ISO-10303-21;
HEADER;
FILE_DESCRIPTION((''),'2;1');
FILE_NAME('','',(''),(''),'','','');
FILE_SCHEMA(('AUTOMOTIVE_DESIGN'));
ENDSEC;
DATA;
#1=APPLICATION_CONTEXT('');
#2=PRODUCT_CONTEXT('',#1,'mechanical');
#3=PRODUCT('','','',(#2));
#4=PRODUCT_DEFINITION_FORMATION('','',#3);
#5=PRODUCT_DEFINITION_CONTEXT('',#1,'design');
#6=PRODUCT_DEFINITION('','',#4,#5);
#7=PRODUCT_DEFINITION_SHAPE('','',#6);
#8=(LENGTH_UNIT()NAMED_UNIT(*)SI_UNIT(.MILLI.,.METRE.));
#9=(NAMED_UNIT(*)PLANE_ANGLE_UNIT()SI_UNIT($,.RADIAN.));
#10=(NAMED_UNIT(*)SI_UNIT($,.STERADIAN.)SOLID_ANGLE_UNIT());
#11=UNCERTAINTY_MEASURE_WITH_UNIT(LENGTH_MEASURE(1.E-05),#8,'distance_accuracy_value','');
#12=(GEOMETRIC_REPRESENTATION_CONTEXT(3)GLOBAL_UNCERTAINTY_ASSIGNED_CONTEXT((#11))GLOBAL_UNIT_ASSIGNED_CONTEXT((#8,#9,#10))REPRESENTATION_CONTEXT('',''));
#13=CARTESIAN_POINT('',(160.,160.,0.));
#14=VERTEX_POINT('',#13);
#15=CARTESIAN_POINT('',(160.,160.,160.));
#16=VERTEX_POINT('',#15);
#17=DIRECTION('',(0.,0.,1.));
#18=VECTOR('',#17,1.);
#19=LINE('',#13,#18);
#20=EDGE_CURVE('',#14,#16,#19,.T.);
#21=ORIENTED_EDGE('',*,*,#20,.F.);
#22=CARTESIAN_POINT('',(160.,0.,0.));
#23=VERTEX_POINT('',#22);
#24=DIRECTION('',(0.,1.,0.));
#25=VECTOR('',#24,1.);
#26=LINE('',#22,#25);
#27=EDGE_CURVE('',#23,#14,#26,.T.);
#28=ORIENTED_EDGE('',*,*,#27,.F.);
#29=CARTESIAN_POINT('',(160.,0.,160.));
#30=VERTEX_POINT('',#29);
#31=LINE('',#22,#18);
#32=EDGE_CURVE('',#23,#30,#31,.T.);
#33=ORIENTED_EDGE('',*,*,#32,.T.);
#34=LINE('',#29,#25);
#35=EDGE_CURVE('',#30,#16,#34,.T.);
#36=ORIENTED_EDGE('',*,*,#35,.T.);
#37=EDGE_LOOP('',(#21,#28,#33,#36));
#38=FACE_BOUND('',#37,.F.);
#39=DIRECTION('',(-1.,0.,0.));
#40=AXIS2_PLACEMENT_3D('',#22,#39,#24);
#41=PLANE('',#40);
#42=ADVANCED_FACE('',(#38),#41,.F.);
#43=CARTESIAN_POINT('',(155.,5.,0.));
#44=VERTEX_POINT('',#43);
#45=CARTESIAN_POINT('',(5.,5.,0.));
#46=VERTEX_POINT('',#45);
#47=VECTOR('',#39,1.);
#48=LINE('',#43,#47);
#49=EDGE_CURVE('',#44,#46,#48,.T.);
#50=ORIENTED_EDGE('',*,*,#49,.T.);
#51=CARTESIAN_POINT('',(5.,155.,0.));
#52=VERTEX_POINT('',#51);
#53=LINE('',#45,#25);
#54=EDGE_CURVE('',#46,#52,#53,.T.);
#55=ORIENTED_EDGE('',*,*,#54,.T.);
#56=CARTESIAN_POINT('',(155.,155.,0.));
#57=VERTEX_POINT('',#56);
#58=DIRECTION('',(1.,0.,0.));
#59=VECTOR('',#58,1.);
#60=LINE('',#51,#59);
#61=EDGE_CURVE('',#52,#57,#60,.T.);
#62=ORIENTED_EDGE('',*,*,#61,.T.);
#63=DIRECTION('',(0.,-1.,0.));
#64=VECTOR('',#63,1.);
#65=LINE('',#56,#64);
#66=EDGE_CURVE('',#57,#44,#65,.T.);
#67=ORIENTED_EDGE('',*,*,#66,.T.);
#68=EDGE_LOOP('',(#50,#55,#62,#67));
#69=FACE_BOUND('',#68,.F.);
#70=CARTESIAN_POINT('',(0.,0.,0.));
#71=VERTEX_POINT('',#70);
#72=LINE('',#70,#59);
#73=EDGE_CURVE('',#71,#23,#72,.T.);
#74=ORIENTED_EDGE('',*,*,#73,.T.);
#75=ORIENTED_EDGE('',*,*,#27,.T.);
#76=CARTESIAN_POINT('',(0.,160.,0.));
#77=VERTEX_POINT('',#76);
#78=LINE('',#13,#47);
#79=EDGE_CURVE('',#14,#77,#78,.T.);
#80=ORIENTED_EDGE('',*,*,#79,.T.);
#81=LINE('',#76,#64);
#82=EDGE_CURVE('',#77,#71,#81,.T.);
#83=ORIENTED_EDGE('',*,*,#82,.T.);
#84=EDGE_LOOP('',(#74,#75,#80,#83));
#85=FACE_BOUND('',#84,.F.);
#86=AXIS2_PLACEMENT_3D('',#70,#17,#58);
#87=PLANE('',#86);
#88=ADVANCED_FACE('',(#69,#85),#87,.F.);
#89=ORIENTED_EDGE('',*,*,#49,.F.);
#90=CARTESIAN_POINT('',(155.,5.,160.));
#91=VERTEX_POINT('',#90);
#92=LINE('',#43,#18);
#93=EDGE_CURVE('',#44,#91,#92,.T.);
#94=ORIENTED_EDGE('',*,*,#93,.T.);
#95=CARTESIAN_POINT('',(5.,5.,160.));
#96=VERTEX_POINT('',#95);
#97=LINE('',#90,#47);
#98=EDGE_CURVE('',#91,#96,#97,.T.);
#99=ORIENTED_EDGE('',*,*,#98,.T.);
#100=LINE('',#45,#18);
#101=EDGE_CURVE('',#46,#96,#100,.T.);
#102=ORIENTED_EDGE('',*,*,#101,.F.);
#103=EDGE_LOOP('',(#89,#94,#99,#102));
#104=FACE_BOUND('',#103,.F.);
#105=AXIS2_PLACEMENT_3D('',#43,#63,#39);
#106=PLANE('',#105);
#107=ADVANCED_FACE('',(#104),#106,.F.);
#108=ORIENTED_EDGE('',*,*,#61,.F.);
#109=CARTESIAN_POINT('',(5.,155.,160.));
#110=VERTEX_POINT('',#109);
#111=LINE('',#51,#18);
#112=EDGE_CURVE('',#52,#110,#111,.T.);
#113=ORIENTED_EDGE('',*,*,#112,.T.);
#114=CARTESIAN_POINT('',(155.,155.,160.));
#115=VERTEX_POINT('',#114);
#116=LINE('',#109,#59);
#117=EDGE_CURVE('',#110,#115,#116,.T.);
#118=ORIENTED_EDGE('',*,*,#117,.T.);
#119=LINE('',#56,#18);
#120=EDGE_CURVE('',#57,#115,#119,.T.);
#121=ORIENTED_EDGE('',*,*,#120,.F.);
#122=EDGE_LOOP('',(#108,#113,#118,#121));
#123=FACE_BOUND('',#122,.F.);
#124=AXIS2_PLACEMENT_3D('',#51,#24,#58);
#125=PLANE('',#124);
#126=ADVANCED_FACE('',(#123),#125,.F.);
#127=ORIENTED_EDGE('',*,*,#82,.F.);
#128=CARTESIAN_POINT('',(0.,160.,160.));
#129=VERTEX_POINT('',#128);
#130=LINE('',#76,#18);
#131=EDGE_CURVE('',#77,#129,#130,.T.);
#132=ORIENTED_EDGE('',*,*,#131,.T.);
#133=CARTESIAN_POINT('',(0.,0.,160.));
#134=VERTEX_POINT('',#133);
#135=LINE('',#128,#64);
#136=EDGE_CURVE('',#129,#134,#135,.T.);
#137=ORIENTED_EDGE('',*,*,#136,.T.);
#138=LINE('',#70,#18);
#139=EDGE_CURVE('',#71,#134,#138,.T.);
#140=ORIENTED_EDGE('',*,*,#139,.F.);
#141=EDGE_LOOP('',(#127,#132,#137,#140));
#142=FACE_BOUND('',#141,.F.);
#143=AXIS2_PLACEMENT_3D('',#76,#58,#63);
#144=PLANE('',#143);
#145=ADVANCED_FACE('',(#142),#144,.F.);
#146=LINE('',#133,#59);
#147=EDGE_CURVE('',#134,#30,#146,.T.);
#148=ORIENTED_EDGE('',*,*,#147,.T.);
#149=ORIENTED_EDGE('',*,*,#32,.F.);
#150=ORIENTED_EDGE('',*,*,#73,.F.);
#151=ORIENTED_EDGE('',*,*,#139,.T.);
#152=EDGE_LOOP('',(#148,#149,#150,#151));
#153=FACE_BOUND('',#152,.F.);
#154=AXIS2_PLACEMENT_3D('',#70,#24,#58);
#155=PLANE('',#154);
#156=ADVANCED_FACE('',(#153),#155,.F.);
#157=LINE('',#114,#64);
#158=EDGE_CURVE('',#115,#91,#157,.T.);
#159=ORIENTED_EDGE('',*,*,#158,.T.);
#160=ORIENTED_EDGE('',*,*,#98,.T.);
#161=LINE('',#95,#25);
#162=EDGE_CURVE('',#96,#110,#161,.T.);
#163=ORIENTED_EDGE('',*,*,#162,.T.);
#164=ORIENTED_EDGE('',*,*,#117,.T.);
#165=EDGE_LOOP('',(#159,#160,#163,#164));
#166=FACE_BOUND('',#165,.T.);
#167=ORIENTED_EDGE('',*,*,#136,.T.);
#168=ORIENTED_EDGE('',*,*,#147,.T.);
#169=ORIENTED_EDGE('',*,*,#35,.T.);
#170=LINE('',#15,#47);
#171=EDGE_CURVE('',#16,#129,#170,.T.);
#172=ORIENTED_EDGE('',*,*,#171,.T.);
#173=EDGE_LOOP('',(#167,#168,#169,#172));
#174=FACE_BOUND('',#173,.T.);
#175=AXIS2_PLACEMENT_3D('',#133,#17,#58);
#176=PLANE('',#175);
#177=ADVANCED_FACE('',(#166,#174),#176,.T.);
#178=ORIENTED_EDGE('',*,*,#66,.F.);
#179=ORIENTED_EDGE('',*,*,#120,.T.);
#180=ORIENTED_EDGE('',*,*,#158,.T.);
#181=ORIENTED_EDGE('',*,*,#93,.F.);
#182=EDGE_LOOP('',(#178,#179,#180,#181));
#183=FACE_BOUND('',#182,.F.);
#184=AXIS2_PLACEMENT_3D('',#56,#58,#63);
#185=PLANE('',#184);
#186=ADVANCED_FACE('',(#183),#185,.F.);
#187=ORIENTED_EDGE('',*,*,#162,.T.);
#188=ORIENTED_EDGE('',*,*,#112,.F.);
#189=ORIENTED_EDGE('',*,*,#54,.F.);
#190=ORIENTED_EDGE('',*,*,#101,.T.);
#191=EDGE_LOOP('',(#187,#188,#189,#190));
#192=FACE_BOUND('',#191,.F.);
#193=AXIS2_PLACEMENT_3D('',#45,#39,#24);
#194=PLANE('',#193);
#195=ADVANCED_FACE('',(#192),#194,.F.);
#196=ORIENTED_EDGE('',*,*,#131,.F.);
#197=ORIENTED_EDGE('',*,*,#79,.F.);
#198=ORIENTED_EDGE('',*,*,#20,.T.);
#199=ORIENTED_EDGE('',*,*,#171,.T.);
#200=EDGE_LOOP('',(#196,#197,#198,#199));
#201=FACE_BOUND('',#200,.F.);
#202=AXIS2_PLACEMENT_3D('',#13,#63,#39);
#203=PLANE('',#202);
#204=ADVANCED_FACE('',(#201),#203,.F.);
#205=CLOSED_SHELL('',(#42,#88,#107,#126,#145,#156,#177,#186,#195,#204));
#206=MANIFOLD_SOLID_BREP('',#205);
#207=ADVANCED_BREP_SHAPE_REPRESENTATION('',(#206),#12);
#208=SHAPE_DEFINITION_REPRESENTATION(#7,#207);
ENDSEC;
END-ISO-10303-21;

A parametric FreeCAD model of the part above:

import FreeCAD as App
import Part
import Sketcher

V = App.Vector
Q = App.Units.Quantity


def add_polygon(sketch, points):
    """Adds a closed chain of lines whose ends are joined by coincident constraints."""
    first, n = sketch.GeometryCount, len(points)
    for a, b in zip(points, points[1:] + points[:1]):
        sketch.addGeometry(Part.LineSegment(App.Vector(*a, 0), App.Vector(*b, 0)), False)
    for i in range(n):
        sketch.addConstraint(Sketcher.Constraint("Coincident", first + i, 2, first + (i + 1) % n, 1))

doc = App.newDocument("Part")
body = doc.addObject("PartDesign::Body", "Body")

# Sketch on XY plane
sketch1 = doc.addObject("Sketcher::SketchObject", "Sketch")
body.addObject(sketch1)
sketch1.AttachmentSupport = (doc.XY_Plane, [""])
sketch1.MapMode = "FlatFace"
add_polygon(sketch1, [(0, 160), (0, 0), (160, 0), (160, 160)])  # lines 0-3
add_polygon(sketch1, [(5, 5), (5, 155), (155, 155), (155, 5)])  # lines 4-7
sketch1.addConstraint(Sketcher.Constraint("Vertical", 0))
sketch1.addConstraint(Sketcher.Constraint("Horizontal", 1))
sketch1.addConstraint(Sketcher.Constraint("Vertical", 2))
sketch1.addConstraint(Sketcher.Constraint("Horizontal", 3))
sketch1.addConstraint(Sketcher.Constraint("Vertical", 4))
sketch1.addConstraint(Sketcher.Constraint("Horizontal", 5))
sketch1.addConstraint(Sketcher.Constraint("Vertical", 6))
sketch1.addConstraint(Sketcher.Constraint("Horizontal", 7))
sketch1.addConstraint(Sketcher.Constraint("Coincident", 0, 2, -1, 1))
sketch1.addConstraint(Sketcher.Constraint("Equal", 3, 0))
sketch1.addConstraint(Sketcher.Constraint("Equal", 7, 4))
sketch1.addConstraint(Sketcher.Constraint("DistanceX", 1, 1, 1, 2, Q("160 mm")))
sketch1.addConstraint(Sketcher.Constraint("DistanceX", -1, 1, 4, 2, Q("5 mm")))
sketch1.addConstraint(Sketcher.Constraint("DistanceY", -1, 1, 6, 2, Q("5 mm")))
sketch1.addConstraint(Sketcher.Constraint("DistanceY", 4, 2, 3, 2, Q("5 mm")))
pad1 = doc.addObject("PartDesign::Pad", "Pad")
body.addObject(pad1)
pad1.Profile = sketch1
pad1.Length = 160

doc.recompute()
